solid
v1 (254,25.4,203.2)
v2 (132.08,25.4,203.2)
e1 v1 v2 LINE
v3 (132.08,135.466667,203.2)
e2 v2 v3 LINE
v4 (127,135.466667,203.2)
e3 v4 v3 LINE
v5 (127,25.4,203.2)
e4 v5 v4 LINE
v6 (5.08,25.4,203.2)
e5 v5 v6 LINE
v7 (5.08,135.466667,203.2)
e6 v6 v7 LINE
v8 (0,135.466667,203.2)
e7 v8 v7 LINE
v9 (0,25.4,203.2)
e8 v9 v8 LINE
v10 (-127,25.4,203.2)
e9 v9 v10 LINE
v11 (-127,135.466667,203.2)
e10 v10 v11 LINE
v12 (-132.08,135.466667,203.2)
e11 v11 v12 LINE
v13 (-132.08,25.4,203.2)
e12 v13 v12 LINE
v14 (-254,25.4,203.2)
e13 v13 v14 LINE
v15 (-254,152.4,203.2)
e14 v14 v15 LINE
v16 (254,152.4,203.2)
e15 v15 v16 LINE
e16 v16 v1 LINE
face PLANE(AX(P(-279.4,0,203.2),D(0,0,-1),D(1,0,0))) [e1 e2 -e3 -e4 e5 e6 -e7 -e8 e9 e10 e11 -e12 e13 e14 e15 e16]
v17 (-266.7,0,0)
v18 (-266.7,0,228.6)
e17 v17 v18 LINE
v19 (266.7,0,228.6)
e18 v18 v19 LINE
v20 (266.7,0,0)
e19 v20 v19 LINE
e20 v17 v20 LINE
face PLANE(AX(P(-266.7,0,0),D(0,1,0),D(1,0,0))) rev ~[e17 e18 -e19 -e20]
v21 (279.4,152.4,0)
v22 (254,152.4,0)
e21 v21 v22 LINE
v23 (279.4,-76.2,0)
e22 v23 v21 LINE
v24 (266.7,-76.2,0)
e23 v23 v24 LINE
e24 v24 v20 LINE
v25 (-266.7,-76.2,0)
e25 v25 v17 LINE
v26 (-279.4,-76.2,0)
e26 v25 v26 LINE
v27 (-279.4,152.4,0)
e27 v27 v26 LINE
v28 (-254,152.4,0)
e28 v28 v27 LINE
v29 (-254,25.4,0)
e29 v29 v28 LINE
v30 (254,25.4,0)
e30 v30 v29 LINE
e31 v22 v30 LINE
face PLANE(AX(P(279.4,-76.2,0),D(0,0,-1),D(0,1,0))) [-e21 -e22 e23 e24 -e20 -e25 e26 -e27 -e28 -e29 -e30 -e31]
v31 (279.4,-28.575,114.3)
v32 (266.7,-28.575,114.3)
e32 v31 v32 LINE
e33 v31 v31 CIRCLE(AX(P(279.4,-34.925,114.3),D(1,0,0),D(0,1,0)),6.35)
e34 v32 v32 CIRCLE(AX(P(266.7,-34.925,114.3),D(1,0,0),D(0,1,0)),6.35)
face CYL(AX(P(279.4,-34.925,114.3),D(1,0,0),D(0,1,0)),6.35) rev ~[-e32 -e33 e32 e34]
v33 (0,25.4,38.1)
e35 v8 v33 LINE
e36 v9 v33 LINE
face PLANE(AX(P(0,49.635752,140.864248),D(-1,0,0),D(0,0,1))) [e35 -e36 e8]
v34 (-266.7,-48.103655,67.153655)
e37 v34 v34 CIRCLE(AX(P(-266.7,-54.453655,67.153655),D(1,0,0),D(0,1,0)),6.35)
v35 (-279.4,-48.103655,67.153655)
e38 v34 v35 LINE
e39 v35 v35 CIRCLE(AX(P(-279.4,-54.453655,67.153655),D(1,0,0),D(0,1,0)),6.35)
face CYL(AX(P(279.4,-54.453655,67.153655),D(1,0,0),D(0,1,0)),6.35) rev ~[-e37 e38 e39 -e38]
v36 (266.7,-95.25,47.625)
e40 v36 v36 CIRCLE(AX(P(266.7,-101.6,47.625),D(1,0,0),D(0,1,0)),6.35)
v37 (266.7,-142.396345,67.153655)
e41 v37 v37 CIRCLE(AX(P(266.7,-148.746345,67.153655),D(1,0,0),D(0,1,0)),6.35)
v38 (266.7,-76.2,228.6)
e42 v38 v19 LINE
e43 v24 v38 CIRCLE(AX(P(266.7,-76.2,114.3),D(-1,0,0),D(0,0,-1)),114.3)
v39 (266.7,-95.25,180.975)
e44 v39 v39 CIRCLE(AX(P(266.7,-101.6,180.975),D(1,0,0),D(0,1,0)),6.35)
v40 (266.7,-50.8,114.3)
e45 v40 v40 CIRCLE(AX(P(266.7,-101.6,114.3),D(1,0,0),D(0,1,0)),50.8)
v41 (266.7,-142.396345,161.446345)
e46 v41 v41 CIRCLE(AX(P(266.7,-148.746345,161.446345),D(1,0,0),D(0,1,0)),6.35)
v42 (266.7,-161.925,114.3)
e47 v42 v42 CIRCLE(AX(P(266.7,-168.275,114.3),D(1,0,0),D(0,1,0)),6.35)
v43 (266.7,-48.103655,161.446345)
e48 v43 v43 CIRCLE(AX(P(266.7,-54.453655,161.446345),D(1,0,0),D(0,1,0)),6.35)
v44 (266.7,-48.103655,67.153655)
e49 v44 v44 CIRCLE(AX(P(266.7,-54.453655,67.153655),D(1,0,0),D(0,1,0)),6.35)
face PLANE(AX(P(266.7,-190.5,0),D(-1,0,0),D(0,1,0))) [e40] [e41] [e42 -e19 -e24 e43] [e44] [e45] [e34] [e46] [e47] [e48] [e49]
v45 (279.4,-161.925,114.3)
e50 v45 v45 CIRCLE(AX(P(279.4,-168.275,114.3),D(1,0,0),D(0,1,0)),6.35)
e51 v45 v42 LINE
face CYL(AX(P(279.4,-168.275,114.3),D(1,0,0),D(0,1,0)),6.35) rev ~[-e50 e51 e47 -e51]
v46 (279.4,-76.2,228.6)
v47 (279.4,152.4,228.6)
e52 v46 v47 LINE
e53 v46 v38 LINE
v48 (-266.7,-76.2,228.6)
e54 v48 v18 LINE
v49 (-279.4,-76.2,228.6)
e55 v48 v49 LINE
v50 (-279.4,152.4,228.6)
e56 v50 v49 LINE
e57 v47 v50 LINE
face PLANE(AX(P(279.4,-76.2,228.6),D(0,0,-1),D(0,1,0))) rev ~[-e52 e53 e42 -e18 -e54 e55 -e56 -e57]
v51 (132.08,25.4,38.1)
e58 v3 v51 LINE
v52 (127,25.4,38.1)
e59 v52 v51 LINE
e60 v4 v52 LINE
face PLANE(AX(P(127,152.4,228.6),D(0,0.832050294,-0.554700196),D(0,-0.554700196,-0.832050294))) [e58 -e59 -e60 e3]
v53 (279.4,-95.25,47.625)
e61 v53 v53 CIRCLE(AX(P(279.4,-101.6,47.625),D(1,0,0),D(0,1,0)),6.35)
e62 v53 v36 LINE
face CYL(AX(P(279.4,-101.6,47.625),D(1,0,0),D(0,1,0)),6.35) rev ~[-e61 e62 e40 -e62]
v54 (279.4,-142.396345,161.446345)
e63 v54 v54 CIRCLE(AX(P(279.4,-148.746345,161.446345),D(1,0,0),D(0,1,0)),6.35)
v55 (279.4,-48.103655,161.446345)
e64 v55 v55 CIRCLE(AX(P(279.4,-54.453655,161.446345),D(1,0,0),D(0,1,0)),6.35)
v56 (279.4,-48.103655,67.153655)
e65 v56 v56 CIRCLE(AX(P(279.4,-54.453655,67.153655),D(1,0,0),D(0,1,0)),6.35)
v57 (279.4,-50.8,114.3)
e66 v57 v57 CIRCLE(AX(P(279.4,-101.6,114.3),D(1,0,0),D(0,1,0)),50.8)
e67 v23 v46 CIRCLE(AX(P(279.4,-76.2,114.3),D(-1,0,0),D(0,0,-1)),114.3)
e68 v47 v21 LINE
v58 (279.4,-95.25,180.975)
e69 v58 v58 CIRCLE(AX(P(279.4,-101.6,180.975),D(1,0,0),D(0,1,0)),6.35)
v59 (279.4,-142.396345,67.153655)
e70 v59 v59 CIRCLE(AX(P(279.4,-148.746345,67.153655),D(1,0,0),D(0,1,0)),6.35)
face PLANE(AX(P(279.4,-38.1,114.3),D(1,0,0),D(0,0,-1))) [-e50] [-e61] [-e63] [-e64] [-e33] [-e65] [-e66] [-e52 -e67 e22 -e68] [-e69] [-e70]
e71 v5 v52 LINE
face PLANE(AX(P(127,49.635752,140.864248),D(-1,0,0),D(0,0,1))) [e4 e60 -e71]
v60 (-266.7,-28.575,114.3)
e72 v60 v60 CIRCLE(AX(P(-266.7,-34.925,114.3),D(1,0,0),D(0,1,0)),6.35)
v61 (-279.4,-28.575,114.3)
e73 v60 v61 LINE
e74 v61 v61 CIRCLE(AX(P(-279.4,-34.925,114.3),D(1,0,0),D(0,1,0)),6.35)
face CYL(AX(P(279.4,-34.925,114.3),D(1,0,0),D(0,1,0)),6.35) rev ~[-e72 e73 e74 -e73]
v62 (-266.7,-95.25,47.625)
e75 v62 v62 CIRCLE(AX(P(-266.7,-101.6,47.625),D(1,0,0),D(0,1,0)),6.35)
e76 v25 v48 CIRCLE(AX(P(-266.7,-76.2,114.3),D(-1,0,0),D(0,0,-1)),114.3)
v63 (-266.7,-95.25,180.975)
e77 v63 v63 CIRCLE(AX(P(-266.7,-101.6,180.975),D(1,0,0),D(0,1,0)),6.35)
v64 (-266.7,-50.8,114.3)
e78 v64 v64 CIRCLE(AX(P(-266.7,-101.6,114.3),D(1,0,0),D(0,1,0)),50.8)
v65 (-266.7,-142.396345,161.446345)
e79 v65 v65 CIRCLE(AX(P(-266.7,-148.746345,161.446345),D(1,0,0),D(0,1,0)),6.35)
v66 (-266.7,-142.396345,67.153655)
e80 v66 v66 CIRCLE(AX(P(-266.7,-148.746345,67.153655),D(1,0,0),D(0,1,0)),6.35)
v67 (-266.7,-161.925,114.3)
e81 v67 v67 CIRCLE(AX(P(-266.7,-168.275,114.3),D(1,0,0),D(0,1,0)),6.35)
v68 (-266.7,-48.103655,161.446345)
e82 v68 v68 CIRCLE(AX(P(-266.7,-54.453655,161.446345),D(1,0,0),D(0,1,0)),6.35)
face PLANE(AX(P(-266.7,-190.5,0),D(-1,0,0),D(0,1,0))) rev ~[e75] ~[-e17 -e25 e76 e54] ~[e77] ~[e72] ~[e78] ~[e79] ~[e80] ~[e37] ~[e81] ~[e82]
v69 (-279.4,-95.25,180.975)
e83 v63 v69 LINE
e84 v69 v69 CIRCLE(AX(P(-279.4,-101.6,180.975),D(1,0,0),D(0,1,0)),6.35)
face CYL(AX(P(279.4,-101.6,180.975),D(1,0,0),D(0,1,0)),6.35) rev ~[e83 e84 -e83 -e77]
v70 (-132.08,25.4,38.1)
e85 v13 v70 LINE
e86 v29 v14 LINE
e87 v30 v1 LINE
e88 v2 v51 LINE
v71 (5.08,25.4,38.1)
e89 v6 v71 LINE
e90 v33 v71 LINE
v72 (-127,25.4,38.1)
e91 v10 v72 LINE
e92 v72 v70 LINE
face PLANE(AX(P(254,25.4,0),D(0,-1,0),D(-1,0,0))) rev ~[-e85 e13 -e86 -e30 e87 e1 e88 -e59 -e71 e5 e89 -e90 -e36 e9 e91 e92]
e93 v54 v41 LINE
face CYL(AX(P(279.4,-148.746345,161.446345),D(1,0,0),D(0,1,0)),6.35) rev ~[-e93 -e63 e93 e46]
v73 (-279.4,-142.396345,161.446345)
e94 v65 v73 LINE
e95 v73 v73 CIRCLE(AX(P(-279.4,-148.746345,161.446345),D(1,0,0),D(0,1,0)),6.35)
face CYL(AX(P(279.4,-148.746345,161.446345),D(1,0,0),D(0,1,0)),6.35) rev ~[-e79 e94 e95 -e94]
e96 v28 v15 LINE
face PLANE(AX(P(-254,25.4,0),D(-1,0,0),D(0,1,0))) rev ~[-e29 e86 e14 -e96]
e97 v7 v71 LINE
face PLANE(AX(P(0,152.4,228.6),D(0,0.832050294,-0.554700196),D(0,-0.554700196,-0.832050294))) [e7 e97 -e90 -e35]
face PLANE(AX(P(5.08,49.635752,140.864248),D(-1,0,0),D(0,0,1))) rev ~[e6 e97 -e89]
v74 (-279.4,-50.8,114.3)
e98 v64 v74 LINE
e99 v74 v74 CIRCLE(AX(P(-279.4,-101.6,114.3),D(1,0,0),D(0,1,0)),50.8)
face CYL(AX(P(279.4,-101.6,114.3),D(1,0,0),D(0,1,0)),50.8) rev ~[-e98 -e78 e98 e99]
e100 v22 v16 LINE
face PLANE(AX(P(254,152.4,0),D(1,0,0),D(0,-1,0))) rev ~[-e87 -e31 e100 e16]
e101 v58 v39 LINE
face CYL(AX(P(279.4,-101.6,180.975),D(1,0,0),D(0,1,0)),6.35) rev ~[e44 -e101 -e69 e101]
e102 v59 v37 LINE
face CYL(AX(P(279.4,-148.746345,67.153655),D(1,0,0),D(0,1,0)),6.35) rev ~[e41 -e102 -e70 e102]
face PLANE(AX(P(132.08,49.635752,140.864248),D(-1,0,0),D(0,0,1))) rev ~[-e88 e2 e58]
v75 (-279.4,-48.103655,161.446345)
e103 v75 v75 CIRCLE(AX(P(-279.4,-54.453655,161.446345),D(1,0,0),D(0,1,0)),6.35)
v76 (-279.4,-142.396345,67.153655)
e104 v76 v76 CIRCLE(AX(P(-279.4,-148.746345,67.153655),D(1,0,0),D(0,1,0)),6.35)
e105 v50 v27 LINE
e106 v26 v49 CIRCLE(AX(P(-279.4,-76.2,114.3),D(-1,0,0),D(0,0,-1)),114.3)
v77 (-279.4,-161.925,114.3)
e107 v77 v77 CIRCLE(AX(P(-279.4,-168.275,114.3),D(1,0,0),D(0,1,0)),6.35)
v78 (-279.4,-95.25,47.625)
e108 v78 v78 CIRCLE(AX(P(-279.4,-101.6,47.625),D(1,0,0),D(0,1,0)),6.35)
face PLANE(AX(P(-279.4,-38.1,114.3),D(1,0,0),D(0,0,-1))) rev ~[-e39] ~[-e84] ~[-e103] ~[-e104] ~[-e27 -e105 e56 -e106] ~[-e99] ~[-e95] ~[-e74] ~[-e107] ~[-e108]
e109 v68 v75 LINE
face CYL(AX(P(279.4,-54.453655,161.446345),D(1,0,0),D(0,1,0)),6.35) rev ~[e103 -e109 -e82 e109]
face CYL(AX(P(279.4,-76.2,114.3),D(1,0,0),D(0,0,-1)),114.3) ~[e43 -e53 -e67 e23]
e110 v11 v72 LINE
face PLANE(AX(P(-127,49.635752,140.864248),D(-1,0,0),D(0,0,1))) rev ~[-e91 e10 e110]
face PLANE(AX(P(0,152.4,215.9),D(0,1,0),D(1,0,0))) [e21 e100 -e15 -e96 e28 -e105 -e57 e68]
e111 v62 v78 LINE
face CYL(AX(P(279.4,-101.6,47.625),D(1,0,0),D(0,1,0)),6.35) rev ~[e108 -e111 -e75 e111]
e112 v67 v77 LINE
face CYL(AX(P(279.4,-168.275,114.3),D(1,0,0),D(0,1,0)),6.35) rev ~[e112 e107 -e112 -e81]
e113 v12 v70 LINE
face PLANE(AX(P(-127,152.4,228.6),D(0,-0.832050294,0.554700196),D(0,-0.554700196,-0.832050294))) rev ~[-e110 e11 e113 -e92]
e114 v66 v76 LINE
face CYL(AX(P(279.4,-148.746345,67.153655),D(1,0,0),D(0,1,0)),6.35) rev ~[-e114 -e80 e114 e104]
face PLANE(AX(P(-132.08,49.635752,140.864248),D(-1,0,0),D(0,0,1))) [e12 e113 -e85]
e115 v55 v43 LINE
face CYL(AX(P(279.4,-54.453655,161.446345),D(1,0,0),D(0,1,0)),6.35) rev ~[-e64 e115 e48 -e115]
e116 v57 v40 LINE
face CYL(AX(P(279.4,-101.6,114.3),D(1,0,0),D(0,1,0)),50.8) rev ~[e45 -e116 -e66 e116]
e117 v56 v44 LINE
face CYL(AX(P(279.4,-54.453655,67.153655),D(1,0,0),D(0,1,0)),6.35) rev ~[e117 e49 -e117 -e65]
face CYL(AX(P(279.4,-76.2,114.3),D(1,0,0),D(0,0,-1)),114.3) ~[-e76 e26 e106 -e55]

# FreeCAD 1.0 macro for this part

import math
import FreeCAD as App
import Part
import Sketcher
Q = App.Units.Quantity


def add_polygon(sketch, points):
    """Adds a closed chain of lines whose ends are joined by coincident constraints."""
    first, n = sketch.GeometryCount, len(points)
    for a, b in zip(points, points[1:] + points[:1]):
        sketch.addGeometry(Part.LineSegment(App.Vector(*a, 0), App.Vector(*b, 0)), False)
    for i in range(n):
        sketch.addConstraint(Sketcher.Constraint("Coincident", first + i, 2, first + (i + 1) % n, 1))

doc = App.newDocument("Part")
body = doc.addObject("PartDesign::Body", "Body")

# Sketch on XY plane
sketch1 = doc.addObject("Sketcher::SketchObject", "Sketch")
body.addObject(sketch1)
sketch1.AttachmentSupport = (doc.XY_Plane, [""])
sketch1.MapMode = "FlatFace"
add_polygon(sketch1, [(-279, 0), (279, 0), (279, 152), (254, 152), (254, 25), (-254, 25), (-254, 152), (-279, 152)])  # lines 0-7
sketch1.addConstraint([
    Sketcher.Constraint("Horizontal", 0),
    Sketcher.Constraint("Vertical", 1),
    Sketcher.Constraint("Horizontal", 2),
    Sketcher.Constraint("Vertical", 3),
    Sketcher.Constraint("Horizontal", 4),
    Sketcher.Constraint("Vertical", 5),
    Sketcher.Constraint("Horizontal", 6),
    Sketcher.Constraint("Vertical", 7),
    Sketcher.Constraint("Symmetric", 0, 2, 7, 2, -1, 1),
    Sketcher.Constraint("Symmetric", 2, 2, 5, 2, -2),
    Sketcher.Constraint("DistanceX", 0, 1, 0, 2, Q("22 in")),
    Sketcher.Constraint("DistanceX", 2, 2, 2, 1, Q("1 in")),
    Sketcher.Constraint("DistanceY", 1, 1, 1, 2, Q("6 in")),
    Sketcher.Constraint("DistanceY", 3, 2, 3, 1, Q("5 in")),
])
pad1 = doc.addObject("PartDesign::Pad", "Pad")
body.addObject(pad1)
pad1.Profile = sketch1
pad1.Length = Q("8 in")

# Sketch on XZ plane
sketch2 = doc.addObject("Sketcher::SketchObject", "Sketch001")
body.addObject(sketch2)
sketch2.AttachmentSupport = (doc.XZ_Plane, [""])
sketch2.MapMode = "FlatFace"
add_polygon(sketch2, [(-279, 203), (-279, 229), (279, 229), (279, 203)])  # lines 0-3
sketch2.addConstraint([
    Sketcher.Constraint("Vertical", 0),
    Sketcher.Constraint("Horizontal", 1),
    Sketcher.Constraint("Vertical", 2),
    Sketcher.Constraint("Horizontal", 3),
    Sketcher.Constraint("DistanceX", 1, 1, 1, 2, Q("22 in")),
    Sketcher.Constraint("DistanceY", 0, 1, 0, 2, Q("1 in")),
    Sketcher.Constraint("DistanceX", 0, 2, -1, 1, Q("11 in")),
    Sketcher.Constraint("DistanceY", -1, 1, 0, 2, Q("9 in")),
])
pad2 = doc.addObject("PartDesign::Pad", "Pad001")
body.addObject(pad2)
pad2.Profile = sketch2
pad2.Length = Q("6 in")
pad2.Reversed = True

# Sketch on YZ plane
sketch3 = doc.addObject("Sketcher::SketchObject", "Sketch002")
body.addObject(sketch3)
sketch3.AttachmentSupport = (doc.YZ_Plane, [""])
sketch3.MapMode = "FlatFace"
sketch3.AttachmentOffset = App.Placement(App.Vector(0, 0, 5 * 25.4), App.Rotation())
add_polygon(sketch3, [(0, 0), (152, 229), (0, 229)])  # lines 0-2
sketch3.addConstraint([
    Sketcher.Constraint("Horizontal", 1),
    Sketcher.Constraint("Vertical", 2),
    Sketcher.Constraint("Coincident", 2, 2, -1, 1),
    Sketcher.Constraint("DistanceX", 1, 2, 1, 1, Q("6 in")),
    Sketcher.Constraint("DistanceY", 2, 2, 2, 1, Q("9 in")),
])
pad3 = doc.addObject("PartDesign::Pad", "Pad002")
body.addObject(pad3)
pad3.Profile = sketch3
pad3.Length = Q("0.2 in")

# Sketch on YZ plane
sketch4 = doc.addObject("Sketcher::SketchObject", "Sketch003")
body.addObject(sketch4)
sketch4.AttachmentSupport = (doc.YZ_Plane, [""])
sketch4.MapMode = "FlatFace"
add_polygon(sketch4, [(0, 0), (152, 229), (0, 229)])  # lines 0-2
sketch4.addConstraint([
    Sketcher.Constraint("Horizontal", 1),
    Sketcher.Constraint("Vertical", 2),
    Sketcher.Constraint("Coincident", 2, 2, -1, 1),
    Sketcher.Constraint("DistanceX", 1, 2, 1, 1, Q("6 in")),
    Sketcher.Constraint("DistanceY", 2, 2, 2, 1, Q("9 in")),
])
pad4 = doc.addObject("PartDesign::Pad", "Pad003")
body.addObject(pad4)
pad4.Profile = sketch4
pad4.Length = Q("0.2 in")

# Sketch on YZ plane
sketch5 = doc.addObject("Sketcher::SketchObject", "Sketch004")
body.addObject(sketch5)
sketch5.AttachmentSupport = (doc.YZ_Plane, [""])
sketch5.MapMode = "FlatFace"
sketch5.AttachmentOffset = App.Placement(App.Vector(0, 0, -5 * 25.4), App.Rotation())
add_polygon(sketch5, [(0, 0), (152, 229), (0, 229)])  # lines 0-2
sketch5.addConstraint([
    Sketcher.Constraint("Horizontal", 1),
    Sketcher.Constraint("Vertical", 2),
    Sketcher.Constraint("Coincident", 2, 2, -1, 1),
    Sketcher.Constraint("DistanceX", 1, 2, 1, 1, Q("6 in")),
    Sketcher.Constraint("DistanceY", 2, 2, 2, 1, Q("9 in")),
])
pad5 = doc.addObject("PartDesign::Pad", "Pad004")
body.addObject(pad5)
pad5.Profile = sketch5
pad5.Length = Q("0.2 in")
pad5.Reversed = True

# Sketch on YZ plane
sketch6 = doc.addObject("Sketcher::SketchObject", "Sketch005")
body.addObject(sketch6)
sketch6.AttachmentSupport = (doc.YZ_Plane, [""])
sketch6.MapMode = "FlatFace"
sketch6.AttachmentOffset = App.Placement(App.Vector(0, 0, 11 * 25.4), App.Rotation())
sketch6.addGeometry([
    Part.LineSegment(App.Vector(0, 229, 0), App.Vector(-76, 229, 0)),
    Part.ArcOfCircle(Part.Circle(App.Vector(-76, 114, 0), App.Vector(0, 0, 1), 114), math.radians(90), math.radians(270)),
    Part.LineSegment(App.Vector(-76, 0, 0), App.Vector(0, 0, 0)),
    Part.LineSegment(App.Vector(0, 0, 0), App.Vector(0, 229, 0)),
], False)
sketch6.addConstraint([
    Sketcher.Constraint("Tangent", 0, 2, 1, 1),
    Sketcher.Constraint("Tangent", 1, 2, 2, 1),
    Sketcher.Constraint("Coincident", 2, 2, 3, 1),
    Sketcher.Constraint("Coincident", 3, 2, 0, 1),
    Sketcher.Constraint("Horizontal", 0),
    Sketcher.Constraint("Horizontal", 2),
    Sketcher.Constraint("Vertical", 3),
    Sketcher.Constraint("Coincident", 2, 2, -1, 1),
    Sketcher.Constraint("Radius", 1, Q("4.5 in")),
    Sketcher.Constraint("DistanceX", 0, 2, 0, 1, Q("3 in")),
])
pad6 = doc.addObject("PartDesign::Pad", "Pad005")
body.addObject(pad6)
pad6.Profile = sketch6
pad6.Length = Q("22 in")
pad6.Reversed = True

# Sketch on XY plane
sketch7 = doc.addObject("Sketcher::SketchObject", "Sketch006")
body.addObject(sketch7)
sketch7.AttachmentSupport = (doc.XY_Plane, [""])
sketch7.MapMode = "FlatFace"
add_polygon(sketch7, [(-267, 0), (-267, -190), (267, -190), (267, 0)])  # lines 0-3
sketch7.addConstraint([
    Sketcher.Constraint("Vertical", 0),
    Sketcher.Constraint("Horizontal", 1),
    Sketcher.Constraint("Vertical", 2),
    Sketcher.Constraint("Horizontal", 3),
    Sketcher.Constraint("Symmetric", 2, 2, 3, 2, -1, 1),
    Sketcher.Constraint("DistanceX", 1, 1, 1, 2, Q("21 in")),
    Sketcher.Constraint("DistanceY", 0, 2, 0, 1, Q("7.5 in")),
])
pocket1 = doc.addObject("PartDesign::Pocket", "Pocket")
body.addObject(pocket1)
pocket1.Profile = sketch7
pocket1.Length = 298.590684
pocket1.Reversed = True

# Sketch on YZ plane
sketch8 = doc.addObject("Sketcher::SketchObject", "Sketch007")
body.addObject(sketch8)
sketch8.AttachmentSupport = (doc.YZ_Plane, [""])
sketch8.MapMode = "FlatFace"
sketch8.AttachmentOffset = App.Placement(App.Vector(0, 0, 11 * 25.4), App.Rotation())
sketch8.addGeometry(Part.Circle(App.Vector(-102, 114, 0), App.Vector(0, 0, 1), 51), False)
sketch8.addConstraint([
    Sketcher.Constraint("Diameter", 0, Q("4 in")),
    Sketcher.Constraint("DistanceX", 0, 3, -1, 1, Q("4 in")),
    Sketcher.Constraint("DistanceY", -1, 1, 0, 3, Q("4.5 in")),
])
pocket2 = doc.addObject("PartDesign::Pocket", "Pocket001")
body.addObject(pocket2)
pocket2.Profile = sketch8
pocket2.Type = "ThroughAll"

# Sketch on YZ plane
sketch9 = doc.addObject("Sketcher::SketchObject", "Sketch008")
body.addObject(sketch9)
sketch9.AttachmentSupport = (doc.YZ_Plane, [""])
sketch9.MapMode = "FlatFace"
sketch9.AttachmentOffset = App.Placement(App.Vector(0, 0, 11 * 25.4), App.Rotation())
sketch9.addGeometry([
    Part.Circle(App.Vector(-35, 114, 0), App.Vector(0, 0, 1), 6),  # 0
    Part.Circle(App.Vector(-54, 67, 0), App.Vector(0, 0, 1), 6),  # 1
    Part.Circle(App.Vector(-102, 48, 0), App.Vector(0, 0, 1), 6),  # 2
    Part.Circle(App.Vector(-149, 67, 0), App.Vector(0, 0, 1), 6),  # 3
    Part.Circle(App.Vector(-168, 114, 0), App.Vector(0, 0, 1), 6),  # 4
    Part.Circle(App.Vector(-149, 161, 0), App.Vector(0, 0, 1), 6),  # 5
    Part.Circle(App.Vector(-102, 181, 0), App.Vector(0, 0, 1), 6),  # 6
    Part.Circle(App.Vector(-54, 161, 0), App.Vector(0, 0, 1), 6),  # 7
], False)
sketch9.addConstraint([
    Sketcher.Constraint("Equal", 0, 1),
    Sketcher.Constraint("Equal", 1, 2),
    Sketcher.Constraint("Equal", 2, 3),
    Sketcher.Constraint("Equal", 3, 4),
    Sketcher.Constraint("Equal", 4, 5),
    Sketcher.Constraint("Equal", 5, 6),
    Sketcher.Constraint("Equal", 6, 7),
    Sketcher.Constraint("Horizontal", 1, 3, 3, 3),
    Sketcher.Constraint("Horizontal", 0, 3, 4, 3),
    Sketcher.Constraint("Horizontal", 5, 3, 7, 3),
    Sketcher.Constraint("Vertical", 3, 3, 5, 3),
    Sketcher.Constraint("Vertical", 2, 3, 6, 3),
    Sketcher.Constraint("Vertical", 1, 3, 7, 3),
    Sketcher.Constraint("Diameter", 0, Q("0.5 in")),
    Sketcher.Constraint("DistanceX", 2, 3, -1, 1, Q("4 in")),
    Sketcher.Constraint("DistanceY", -1, 1, 0, 3, Q("4.5 in")),
    Sketcher.Constraint("DistanceX", 4, 3, 0, 3, Q("5.25 in")),
    Sketcher.Constraint("DistanceX", 0, 3, -1, 1, Q("1.375 in")),
    Sketcher.Constraint("DistanceY", -1, 1, 2, 3, Q("1.875 in")),
    Sketcher.Constraint("DistanceY", -1, 1, 6, 3, Q("7.125 in")),
    Sketcher.Constraint("DistanceX", 3, 3, 1, 3, Q("94.292689 mm")),
    Sketcher.Constraint("DistanceY", 3, 3, 5, 3, Q("94.292689 mm")),
    Sketcher.Constraint("DistanceX", 1, 3, -1, 1, Q("54.453655 mm")),
    Sketcher.Constraint("DistanceY", -1, 1, 1, 3, Q("67.153655 mm")),
])
pocket3 = doc.addObject("PartDesign::Pocket", "Pocket002")
body.addObject(pocket3)
pocket3.Profile = sketch9
pocket3.Type = "ThroughAll"

doc.recompute()
